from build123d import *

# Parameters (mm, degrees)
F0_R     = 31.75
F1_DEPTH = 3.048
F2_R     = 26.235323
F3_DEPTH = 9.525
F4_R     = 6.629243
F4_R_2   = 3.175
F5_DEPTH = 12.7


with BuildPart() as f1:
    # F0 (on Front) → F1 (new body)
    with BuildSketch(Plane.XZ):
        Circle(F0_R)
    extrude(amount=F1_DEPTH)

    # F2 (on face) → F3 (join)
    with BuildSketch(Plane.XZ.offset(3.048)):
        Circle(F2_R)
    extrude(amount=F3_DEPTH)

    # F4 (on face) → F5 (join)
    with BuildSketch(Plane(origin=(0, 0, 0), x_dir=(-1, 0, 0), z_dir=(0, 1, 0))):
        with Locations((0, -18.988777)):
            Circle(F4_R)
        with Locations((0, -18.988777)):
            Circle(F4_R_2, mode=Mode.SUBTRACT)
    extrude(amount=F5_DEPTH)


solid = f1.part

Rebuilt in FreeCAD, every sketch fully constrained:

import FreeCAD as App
import Part
import Sketcher
from FreeCAD import Vector
Q = App.Units.Quantity

doc = App.newDocument("Part")
body = doc.addObject("PartDesign::Body", "Body")

# Sketch on XZ plane
sketch1 = body.newObject("Sketcher::SketchObject", "Sketch")
sketch1.AttachmentSupport = (doc.getObject("XZ_Plane"), [""])
sketch1.MapMode = "FlatFace"
sketch1.addGeometry(Part.Circle(Vector(0, 0, 0), Vector(0, 0, 1), 31.75), False)
sketch1.addConstraint(Sketcher.Constraint("Coincident", 0, 3, -1, 1))
sketch1.addConstraint(Sketcher.Constraint("Diameter", 0, Q("2.5 in")))
pad1 = body.newObject("PartDesign::Pad", "Pad")
pad1.Profile = sketch1
pad1.Length = Q("0.12 in")

# Sketch on XZ plane
sketch2 = body.newObject("Sketcher::SketchObject", "Sketch001")
sketch2.AttachmentSupport = (doc.getObject("XZ_Plane"), [""])
sketch2.MapMode = "FlatFace"
sketch2.AttachmentOffset = App.Placement(Vector(0, 0, 0.12 * 25.4), App.Rotation())
sketch2.addGeometry(Part.Circle(Vector(0, 0, 0), Vector(0, 0, 1), 26.235323), False)
sketch2.addConstraint(Sketcher.Constraint("Coincident", 0, 3, -1, 1))
sketch2.addConstraint(Sketcher.Constraint("Diameter", 0, 52.470646))
pad2 = body.newObject("PartDesign::Pad", "Pad001")
pad2.Profile = sketch2
pad2.Length = Q("0.375 in")

# Sketch on XZ plane
sketch3 = body.newObject("Sketcher::SketchObject", "Sketch002")
sketch3.AttachmentSupport = (doc.getObject("XZ_Plane"), [""])
sketch3.MapMode = "FlatFace"
sketch3.addGeometry(Part.Circle(Vector(0, -18.988777, 0), Vector(0, 0, 1), 6.629243), False)
sketch3.addGeometry(Part.Circle(Vector(0, -18.988777, 0), Vector(0, 0, 1), 3.175), False)
sketch3.addConstraint(Sketcher.Constraint("Coincident", 1, 3, 0, 3))
sketch3.addConstraint(Sketcher.Constraint("PointOnObject", 0, 3, -2))
sketch3.addConstraint(Sketcher.Constraint("Diameter", 1, Q("0.25 in")))
sketch3.addConstraint(Sketcher.Constraint("Diameter", 0, 13.258486))
sketch3.addConstraint(Sketcher.Constraint("DistanceY", 0, 3, -1, 1, 18.988777))
pad3 = body.newObject("PartDesign::Pad", "Pad002")
pad3.Profile = sketch3
pad3.Length = Q("0.5 in")
pad3.Reversed = True

doc.recompute()
